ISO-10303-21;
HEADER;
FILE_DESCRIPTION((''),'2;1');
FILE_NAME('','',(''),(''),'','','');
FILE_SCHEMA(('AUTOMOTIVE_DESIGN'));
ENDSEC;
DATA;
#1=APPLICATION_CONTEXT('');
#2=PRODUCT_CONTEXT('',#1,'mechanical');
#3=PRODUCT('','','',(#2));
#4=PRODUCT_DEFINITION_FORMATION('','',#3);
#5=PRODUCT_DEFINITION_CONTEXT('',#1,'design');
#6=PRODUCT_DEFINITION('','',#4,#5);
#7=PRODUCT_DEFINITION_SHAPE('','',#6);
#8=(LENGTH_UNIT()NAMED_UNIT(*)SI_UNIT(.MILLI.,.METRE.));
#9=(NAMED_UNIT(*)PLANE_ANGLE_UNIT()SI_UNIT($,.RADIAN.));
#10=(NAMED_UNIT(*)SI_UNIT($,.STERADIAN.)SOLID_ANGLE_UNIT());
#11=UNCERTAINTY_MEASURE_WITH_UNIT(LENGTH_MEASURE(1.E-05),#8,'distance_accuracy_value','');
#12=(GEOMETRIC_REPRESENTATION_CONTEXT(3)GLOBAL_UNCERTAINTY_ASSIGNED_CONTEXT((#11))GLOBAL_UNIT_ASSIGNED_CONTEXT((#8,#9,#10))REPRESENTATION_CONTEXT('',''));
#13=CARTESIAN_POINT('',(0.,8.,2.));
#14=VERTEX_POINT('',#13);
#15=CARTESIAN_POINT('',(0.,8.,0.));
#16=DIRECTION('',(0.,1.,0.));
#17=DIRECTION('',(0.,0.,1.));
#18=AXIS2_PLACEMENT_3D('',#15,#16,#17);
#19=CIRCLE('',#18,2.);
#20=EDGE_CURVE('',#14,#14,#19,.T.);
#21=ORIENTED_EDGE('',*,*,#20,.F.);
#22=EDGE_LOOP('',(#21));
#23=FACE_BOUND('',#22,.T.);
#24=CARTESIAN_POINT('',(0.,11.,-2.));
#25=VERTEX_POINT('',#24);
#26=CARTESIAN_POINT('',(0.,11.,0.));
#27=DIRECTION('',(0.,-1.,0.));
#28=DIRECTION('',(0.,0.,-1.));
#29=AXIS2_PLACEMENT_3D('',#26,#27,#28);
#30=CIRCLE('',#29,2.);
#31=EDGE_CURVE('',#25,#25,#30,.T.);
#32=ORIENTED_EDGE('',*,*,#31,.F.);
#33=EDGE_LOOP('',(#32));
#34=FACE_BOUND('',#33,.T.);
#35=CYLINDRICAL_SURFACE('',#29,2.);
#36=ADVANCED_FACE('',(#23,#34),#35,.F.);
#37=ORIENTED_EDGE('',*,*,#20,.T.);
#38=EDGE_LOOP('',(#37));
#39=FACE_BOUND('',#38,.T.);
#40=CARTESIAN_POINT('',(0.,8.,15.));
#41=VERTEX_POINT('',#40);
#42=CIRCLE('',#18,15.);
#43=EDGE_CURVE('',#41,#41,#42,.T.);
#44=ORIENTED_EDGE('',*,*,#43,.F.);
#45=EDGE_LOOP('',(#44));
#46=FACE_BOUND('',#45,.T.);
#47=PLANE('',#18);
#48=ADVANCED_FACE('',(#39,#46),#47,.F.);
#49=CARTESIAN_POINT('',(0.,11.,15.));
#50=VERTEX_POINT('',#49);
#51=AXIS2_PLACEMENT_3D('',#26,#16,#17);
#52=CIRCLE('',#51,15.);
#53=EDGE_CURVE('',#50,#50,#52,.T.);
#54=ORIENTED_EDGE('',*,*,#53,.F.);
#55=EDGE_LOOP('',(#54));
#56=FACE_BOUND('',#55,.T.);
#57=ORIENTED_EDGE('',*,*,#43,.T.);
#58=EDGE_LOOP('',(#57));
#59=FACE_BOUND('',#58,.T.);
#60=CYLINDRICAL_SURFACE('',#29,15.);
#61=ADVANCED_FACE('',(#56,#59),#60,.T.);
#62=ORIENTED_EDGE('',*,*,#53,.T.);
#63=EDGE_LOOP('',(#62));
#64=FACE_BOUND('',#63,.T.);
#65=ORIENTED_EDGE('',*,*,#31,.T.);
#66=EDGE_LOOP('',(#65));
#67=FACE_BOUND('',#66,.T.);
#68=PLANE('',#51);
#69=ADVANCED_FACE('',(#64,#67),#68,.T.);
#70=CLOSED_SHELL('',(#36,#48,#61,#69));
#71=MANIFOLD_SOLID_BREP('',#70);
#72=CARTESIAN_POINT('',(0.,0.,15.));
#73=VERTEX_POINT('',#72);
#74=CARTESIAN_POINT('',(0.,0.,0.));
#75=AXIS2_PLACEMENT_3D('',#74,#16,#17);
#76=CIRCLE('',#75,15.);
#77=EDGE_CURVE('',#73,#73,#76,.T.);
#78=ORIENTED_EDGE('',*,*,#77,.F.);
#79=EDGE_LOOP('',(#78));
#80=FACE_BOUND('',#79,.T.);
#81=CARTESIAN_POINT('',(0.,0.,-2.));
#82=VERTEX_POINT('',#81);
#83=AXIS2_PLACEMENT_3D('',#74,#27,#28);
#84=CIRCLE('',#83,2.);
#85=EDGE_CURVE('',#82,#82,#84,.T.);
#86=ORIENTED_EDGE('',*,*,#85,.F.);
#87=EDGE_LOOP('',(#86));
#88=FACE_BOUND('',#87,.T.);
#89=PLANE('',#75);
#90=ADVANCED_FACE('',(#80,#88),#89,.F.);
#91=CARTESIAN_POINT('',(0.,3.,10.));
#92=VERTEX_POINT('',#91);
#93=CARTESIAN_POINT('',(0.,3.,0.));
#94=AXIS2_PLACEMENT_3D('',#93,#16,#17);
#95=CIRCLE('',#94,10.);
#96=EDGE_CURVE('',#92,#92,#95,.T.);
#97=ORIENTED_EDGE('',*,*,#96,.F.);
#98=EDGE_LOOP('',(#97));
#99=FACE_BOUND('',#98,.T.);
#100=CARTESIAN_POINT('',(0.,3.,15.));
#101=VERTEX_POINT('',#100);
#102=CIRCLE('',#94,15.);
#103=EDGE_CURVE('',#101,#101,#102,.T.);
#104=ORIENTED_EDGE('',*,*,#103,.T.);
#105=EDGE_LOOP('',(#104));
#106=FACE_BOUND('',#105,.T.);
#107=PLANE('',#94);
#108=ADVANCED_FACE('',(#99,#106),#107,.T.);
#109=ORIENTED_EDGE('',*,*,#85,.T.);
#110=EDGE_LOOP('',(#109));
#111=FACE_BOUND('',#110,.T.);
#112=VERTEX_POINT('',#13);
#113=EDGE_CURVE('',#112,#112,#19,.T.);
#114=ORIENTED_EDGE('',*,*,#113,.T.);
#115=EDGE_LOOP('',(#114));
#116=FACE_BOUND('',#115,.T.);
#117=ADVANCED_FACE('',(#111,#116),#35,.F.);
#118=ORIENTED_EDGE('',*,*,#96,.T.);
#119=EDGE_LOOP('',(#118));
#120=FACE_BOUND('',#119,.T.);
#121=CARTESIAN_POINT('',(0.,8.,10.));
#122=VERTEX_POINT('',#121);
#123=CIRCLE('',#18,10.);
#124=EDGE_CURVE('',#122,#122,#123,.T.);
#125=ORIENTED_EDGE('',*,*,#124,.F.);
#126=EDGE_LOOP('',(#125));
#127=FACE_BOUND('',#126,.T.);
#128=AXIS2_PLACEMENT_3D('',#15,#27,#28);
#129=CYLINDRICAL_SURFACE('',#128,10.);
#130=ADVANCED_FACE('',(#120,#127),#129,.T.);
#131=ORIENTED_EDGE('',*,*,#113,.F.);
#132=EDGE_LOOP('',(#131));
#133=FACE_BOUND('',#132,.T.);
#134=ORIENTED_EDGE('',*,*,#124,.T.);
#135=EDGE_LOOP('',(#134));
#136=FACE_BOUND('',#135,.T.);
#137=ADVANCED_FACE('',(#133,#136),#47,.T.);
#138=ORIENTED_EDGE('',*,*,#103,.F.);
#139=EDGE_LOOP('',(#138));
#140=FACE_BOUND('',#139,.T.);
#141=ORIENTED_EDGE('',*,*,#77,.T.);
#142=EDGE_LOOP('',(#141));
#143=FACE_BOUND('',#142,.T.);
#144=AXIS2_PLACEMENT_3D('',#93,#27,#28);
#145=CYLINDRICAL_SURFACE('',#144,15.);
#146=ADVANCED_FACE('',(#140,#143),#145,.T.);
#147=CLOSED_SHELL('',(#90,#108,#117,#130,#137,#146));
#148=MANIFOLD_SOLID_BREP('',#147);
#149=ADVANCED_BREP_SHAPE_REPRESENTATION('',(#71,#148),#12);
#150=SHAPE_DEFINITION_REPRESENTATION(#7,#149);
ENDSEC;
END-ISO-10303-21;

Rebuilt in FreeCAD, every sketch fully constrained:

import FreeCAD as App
import Part
import Sketcher
Q = App.Units.Quantity

doc = App.newDocument("Part")
body = doc.addObject("PartDesign::Body", "Body")

sketch1 = body.newObject("Sketcher::SketchObject", "Sketch")
sketch1.AttachmentSupport = (doc.getObject("XZ_Plane"), [""])
sketch1.MapMode = "FlatFace"
sketch1.addGeometry(Part.Circle(App.Vector(0, 0, 0), App.Vector(0, 0, 1), 15), False)
sketch1.addConstraint([
    Sketcher.Constraint("Coincident", 0, 3, -1, 1),
    Sketcher.Constraint("Diameter", 0, Q("30 mm")),
])
pad1 = body.newObject("PartDesign::Pad", "Pad")
pad1.Profile = sketch1
pad1.Length = 3
pad1.Reversed = True

sketch2 = body.newObject("Sketcher::SketchObject", "Sketch001")
sketch2.AttachmentSupport = (doc.getObject("XZ_Plane"), [""])
sketch2.MapMode = "FlatFace"
sketch2.AttachmentOffset = App.Placement(App.Vector(0, 0, -3), App.Rotation())
sketch2.addGeometry(Part.Circle(App.Vector(0, 0, 0), App.Vector(0, 0, 1), 10), False)
sketch2.addConstraint([
    Sketcher.Constraint("Coincident", 0, 3, -1, 1),
    Sketcher.Constraint("Diameter", 0, Q("20 mm")),
])
pad2 = body.newObject("PartDesign::Pad", "Pad001")
pad2.Profile = sketch2
pad2.Length = 5
pad2.Reversed = True
body2 = doc.addObject("PartDesign::Body", "Body001")

sketch3 = body2.newObject("Sketcher::SketchObject", "Sketch002")
sketch3.AttachmentSupport = (doc.getObject("XZ_Plane001"), [""])
sketch3.MapMode = "FlatFace"
sketch3.AttachmentOffset = App.Placement(App.Vector(0, 0, -8), App.Rotation())
sketch3.addGeometry(Part.Circle(App.Vector(0, 0, 0), App.Vector(0, 0, 1), 15), False)
sketch3.addConstraint([
    Sketcher.Constraint("Coincident", 0, 3, -1, 1),
    Sketcher.Constraint("Diameter", 0, Q("30 mm")),
])
pad3 = body2.newObject("PartDesign::Pad", "Pad002")
pad3.Profile = sketch3
pad3.Length = 3
pad3.Reversed = True
body3 = doc.addObject("PartDesign::Body", "Body002")

sketch4 = body3.newObject("Sketcher::SketchObject", "Sketch003")
sketch4.AttachmentSupport = (doc.getObject("XZ_Plane002"), [""])
sketch4.MapMode = "FlatFace"
sketch4.addGeometry(Part.Circle(App.Vector(0, 0, 0), App.Vector(0, 0, 1), 2), False)
sketch4.addConstraint([
    Sketcher.Constraint("Coincident", 0, 3, -1, 1),
    Sketcher.Constraint("Diameter", 0, Q("4 mm")),
])
pad4 = body3.newObject("PartDesign::Pad", "Pad003")
pad4.Profile = sketch4
pad4.Length = 24.895606
pad4.Reversed = True
doc.recompute()

body4 = doc.addObject("PartDesign::Body", "Body003")
body4.BaseFeature = body3
boolean = body.newObject("PartDesign::Boolean", "Boolean")
boolean.Type = "Cut"
boolean.addObjects([body4])
doc.recompute()

boolean2 = body2.newObject("PartDesign::Boolean", "Boolean001")
boolean2.Type = "Cut"
boolean2.addObjects([body3])

doc.recompute()
